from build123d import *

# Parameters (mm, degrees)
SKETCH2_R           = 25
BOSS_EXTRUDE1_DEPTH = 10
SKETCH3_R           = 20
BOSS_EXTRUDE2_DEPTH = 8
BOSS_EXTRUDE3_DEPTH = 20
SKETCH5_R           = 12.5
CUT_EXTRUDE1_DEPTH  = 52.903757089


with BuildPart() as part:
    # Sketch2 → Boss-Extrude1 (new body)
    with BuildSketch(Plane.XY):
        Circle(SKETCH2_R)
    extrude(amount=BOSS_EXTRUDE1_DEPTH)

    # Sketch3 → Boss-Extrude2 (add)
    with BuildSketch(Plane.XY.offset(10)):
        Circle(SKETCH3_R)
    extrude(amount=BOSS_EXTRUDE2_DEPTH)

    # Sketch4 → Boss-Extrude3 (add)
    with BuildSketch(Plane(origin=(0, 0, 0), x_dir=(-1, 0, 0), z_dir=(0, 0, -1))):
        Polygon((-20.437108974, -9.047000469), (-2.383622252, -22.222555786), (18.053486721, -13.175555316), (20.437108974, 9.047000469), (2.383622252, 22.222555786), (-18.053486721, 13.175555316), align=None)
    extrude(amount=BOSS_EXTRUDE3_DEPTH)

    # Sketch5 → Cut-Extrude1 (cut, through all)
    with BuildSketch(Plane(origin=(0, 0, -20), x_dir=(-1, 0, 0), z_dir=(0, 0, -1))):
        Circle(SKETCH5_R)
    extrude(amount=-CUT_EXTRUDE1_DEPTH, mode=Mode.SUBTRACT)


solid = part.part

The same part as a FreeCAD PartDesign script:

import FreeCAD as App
import Part
import Sketcher

V = App.Vector


def add_polygon(sketch, points):
    """Adds a closed chain of lines whose ends are joined by coincident constraints."""
    first, n = sketch.GeometryCount, len(points)
    for a, b in zip(points, points[1:] + points[:1]):
        sketch.addGeometry(Part.LineSegment(App.Vector(*a, 0), App.Vector(*b, 0)), False)
    for i in range(n):
        sketch.addConstraint(Sketcher.Constraint("Coincident", first + i, 2, first + (i + 1) % n, 1))

doc = App.newDocument("Part")
params = doc.addObject("Spreadsheet::Sheet", "Params")
for row, (alias, value) in enumerate([
    ("sketch1_diameter", "50 mm"),
    ("pad1_length", "10 mm"),
    ("sketch2_diameter", "40 mm"),
    ("pad2_length", "8 mm"),
    ("pad3_length", "20 mm"),
    ("sketch4_diameter", "25 mm"),
], start=1):
    params.set(f"A{row}", alias)
    params.set(f"B{row}", "=" + value)
    params.setAlias(f"B{row}", alias)

body = doc.addObject("PartDesign::Body", "Body")

# Sketch on XY plane
sketch1 = body.newObject("Sketcher::SketchObject", "Sketch")
sketch1.AttachmentSupport = (doc.getObject("XY_Plane"), [""])
sketch1.MapMode = "FlatFace"
sketch1.addGeometry(Part.Circle(V(0, 0, 0), V(0, 0, 1), 25), False)
sketch1.addConstraint([
    Sketcher.Constraint("Coincident", 0, 3, -1, 1),
    Sketcher.Constraint("Diameter", 0, 50.0),
])
sketch1.setExpression("Constraints[1]", "Params.sketch1_diameter")
pad1 = body.newObject("PartDesign::Pad", "Pad")
pad1.Profile = sketch1
pad1.setExpression("Length", "Params.pad1_length")

# Sketch on XY plane
sketch2 = body.newObject("Sketcher::SketchObject", "Sketch001")
sketch2.AttachmentSupport = (doc.getObject("XY_Plane"), [""])
sketch2.MapMode = "FlatFace"
sketch2.AttachmentOffset = App.Placement(V(0, 0, 10), App.Rotation())
sketch2.addGeometry(Part.Circle(V(0, 0, 0), V(0, 0, 1), 20), False)
sketch2.addConstraint([
    Sketcher.Constraint("Coincident", 0, 3, -1, 1),
    Sketcher.Constraint("Diameter", 0, 40.0),
])
sketch2.setExpression("Constraints[1]", "Params.sketch2_diameter")
pad2 = body.newObject("PartDesign::Pad", "Pad001")
pad2.Profile = sketch2
pad2.setExpression("Length", "Params.pad2_length")

# Sketch on XY plane
sketch3 = body.newObject("Sketcher::SketchObject", "Sketch002")
sketch3.AttachmentSupport = (doc.getObject("XY_Plane"), [""])
sketch3.MapMode = "FlatFace"
add_polygon(sketch3, [(20.437109, -9.047), (2.383622, -22.222556), (-18.053487, -13.175555), (-20.437109, 9.047), (-2.383622, 22.222556), (18.053487, 13.175555)])  # lines 0-5
sketch3.addConstraint([
    Sketcher.Constraint("Symmetric", 0, 2, 3, 2, -1, 1),
    Sketcher.Constraint("Symmetric", 1, 2, 4, 2, -1, 1),
    Sketcher.Constraint("Symmetric", 2, 2, 5, 2, -1, 1),
    Sketcher.Constraint("Equal", 0, 1),
    Sketcher.Constraint("Equal", 1, 2),
    Sketcher.Constraint("DistanceY", -1, 1, 2, 2, 9.047),
    Sketcher.Constraint("DistanceY", 0, 2, 1, 2, 9.047),
    Sketcher.Constraint("DistanceX", 2, 2, -1, 1, 20.437109),
    Sketcher.Constraint("DistanceX", 1, 2, 0, 2, 20.437109),
])
pad3 = body.newObject("PartDesign::Pad", "Pad002")
pad3.Profile = sketch3
pad3.setExpression("Length", "Params.pad3_length")
pad3.Reversed = True

# Sketch on XY plane
sketch4 = body.newObject("Sketcher::SketchObject", "Sketch003")
sketch4.AttachmentSupport = (doc.getObject("XY_Plane"), [""])
sketch4.MapMode = "FlatFace"
sketch4.AttachmentOffset = App.Placement(V(0, 0, -20), App.Rotation())
sketch4.addGeometry(Part.Circle(V(0, 0, 0), V(0, 0, 1), 12.5), False)
sketch4.addConstraint([
    Sketcher.Constraint("Coincident", 0, 3, -1, 1),
    Sketcher.Constraint("Diameter", 0, 25.0),
])
sketch4.setExpression("Constraints[1]", "Params.sketch4_diameter")
pocket1 = body.newObject("PartDesign::Pocket", "Pocket")
pocket1.Profile = sketch4
pocket1.Type = "ThroughAll"
pocket1.Reversed = True

doc.recompute()
